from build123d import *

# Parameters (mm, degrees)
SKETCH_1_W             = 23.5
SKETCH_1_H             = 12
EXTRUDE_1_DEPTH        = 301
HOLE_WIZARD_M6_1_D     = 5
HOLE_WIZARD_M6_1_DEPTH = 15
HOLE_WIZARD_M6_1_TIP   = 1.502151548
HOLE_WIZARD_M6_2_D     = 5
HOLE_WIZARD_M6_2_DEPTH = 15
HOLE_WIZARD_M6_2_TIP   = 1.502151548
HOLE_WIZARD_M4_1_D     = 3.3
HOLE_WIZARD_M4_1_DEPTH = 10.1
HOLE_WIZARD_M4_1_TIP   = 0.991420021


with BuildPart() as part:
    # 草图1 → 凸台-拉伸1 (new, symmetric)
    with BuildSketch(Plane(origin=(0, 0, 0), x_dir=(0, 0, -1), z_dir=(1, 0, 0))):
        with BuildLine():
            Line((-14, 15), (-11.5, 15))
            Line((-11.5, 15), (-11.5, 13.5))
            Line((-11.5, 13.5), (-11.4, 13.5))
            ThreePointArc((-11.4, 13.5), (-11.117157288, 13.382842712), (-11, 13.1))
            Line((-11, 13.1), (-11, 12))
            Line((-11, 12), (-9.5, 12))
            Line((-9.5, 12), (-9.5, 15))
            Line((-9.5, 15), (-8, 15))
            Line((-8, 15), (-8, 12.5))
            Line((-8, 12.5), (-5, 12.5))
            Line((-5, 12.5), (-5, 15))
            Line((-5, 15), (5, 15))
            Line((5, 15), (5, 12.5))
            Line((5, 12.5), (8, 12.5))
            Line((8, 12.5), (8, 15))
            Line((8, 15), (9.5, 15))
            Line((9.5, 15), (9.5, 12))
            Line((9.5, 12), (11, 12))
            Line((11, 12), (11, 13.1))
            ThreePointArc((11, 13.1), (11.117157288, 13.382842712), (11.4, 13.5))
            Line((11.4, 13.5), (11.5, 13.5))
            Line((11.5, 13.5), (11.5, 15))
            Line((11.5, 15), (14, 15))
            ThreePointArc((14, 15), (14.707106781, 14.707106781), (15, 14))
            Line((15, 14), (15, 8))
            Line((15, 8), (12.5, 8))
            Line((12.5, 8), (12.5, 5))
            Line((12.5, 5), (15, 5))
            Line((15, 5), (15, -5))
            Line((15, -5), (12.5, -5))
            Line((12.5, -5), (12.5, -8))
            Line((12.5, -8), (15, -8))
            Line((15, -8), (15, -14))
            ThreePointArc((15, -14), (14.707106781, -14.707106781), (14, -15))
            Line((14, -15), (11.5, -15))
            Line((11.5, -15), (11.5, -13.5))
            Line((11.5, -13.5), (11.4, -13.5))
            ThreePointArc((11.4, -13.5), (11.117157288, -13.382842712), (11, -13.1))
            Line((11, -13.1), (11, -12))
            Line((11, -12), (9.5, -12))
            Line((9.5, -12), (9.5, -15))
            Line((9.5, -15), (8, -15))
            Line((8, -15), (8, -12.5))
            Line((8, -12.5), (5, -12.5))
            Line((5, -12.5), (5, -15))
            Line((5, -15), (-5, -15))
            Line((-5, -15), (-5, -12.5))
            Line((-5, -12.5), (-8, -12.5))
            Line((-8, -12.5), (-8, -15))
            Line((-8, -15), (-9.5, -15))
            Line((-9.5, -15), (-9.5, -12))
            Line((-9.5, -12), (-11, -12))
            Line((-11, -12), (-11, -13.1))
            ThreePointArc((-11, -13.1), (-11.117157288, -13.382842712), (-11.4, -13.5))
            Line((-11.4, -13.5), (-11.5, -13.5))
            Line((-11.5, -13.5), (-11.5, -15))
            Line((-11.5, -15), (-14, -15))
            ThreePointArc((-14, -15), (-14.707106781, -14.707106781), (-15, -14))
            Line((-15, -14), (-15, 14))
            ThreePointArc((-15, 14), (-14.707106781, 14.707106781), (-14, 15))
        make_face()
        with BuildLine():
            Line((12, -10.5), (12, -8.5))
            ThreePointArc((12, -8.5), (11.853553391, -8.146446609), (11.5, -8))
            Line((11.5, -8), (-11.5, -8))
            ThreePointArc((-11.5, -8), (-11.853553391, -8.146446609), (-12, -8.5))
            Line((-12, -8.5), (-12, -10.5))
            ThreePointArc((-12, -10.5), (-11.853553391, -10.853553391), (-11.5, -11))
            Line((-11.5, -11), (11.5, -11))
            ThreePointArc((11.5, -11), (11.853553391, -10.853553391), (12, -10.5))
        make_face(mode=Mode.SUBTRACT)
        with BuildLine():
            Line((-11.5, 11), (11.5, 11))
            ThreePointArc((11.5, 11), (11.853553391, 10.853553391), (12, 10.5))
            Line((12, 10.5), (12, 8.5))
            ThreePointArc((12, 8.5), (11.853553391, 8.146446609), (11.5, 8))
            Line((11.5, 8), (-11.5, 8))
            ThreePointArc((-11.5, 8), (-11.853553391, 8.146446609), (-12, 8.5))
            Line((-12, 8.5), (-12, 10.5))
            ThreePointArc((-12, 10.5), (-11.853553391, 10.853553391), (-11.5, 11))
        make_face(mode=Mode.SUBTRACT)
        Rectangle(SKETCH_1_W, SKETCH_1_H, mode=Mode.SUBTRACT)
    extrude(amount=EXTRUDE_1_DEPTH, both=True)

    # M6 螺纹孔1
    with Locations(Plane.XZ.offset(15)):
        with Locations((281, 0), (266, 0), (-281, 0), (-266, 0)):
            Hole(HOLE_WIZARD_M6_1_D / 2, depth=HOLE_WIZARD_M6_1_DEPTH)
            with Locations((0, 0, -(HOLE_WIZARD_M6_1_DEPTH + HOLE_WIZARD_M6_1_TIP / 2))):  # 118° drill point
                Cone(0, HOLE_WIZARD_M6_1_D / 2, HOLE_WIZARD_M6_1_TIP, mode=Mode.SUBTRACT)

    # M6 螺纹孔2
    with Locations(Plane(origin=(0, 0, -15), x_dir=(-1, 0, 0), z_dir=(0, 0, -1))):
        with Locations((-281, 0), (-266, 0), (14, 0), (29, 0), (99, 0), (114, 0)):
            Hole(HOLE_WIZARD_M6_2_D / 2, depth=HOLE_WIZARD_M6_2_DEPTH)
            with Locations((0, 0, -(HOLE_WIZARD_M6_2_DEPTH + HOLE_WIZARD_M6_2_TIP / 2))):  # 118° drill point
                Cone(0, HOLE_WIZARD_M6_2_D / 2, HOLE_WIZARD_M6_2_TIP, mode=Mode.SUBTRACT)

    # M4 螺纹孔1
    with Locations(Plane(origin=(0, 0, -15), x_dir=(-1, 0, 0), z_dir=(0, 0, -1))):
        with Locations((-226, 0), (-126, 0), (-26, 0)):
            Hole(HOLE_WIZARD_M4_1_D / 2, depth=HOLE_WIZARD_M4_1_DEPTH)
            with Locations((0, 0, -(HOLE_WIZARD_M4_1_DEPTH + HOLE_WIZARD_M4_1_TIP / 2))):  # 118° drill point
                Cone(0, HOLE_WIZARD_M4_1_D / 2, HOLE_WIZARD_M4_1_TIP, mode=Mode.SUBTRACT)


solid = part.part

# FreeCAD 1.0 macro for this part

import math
import FreeCAD as App
import Part
import Sketcher
from FreeCAD import Vector
Q = App.Units.Quantity

doc = App.newDocument("Part")
body = doc.addObject("PartDesign::Body", "Body")

sketch1 = body.newObject("Sketcher::SketchObject", "Sketch")
sketch1.AttachmentSupport = (doc.getObject("YZ_Plane"), [""])
sketch1.MapMode = "FlatFace"
sketch1.addGeometry([
    Part.LineSegment(Vector(15, 11.5, 0), Vector(15, 14, 0)),
    Part.ArcOfCircle(Part.Circle(Vector(14, 14, 0), Vector(0, 0, 1), 1), math.radians(0), math.radians(90)),
    Part.LineSegment(Vector(14, 15, 0), Vector(-14, 15, 0)),
    Part.ArcOfCircle(Part.Circle(Vector(-14, 14, 0), Vector(0, 0, 1), 1), math.radians(90), math.radians(180)),
    Part.LineSegment(Vector(-15, 14, 0), Vector(-15, 11.5, 0)),
    Part.LineSegment(Vector(-15, 11.5, 0), Vector(-13.5, 11.5, 0)),
    Part.LineSegment(Vector(-13.5, 11.5, 0), Vector(-13.5, 11.4, 0)),
    Part.ArcOfCircle(Part.Circle(Vector(-13.1, 11.4, 0), Vector(0, 0, 1), 0.4), math.radians(-180), math.radians(-90)),
    Part.LineSegment(Vector(-13.1, 11, 0), Vector(-12, 11, 0)),
    Part.LineSegment(Vector(-12, 11, 0), Vector(-12, 9.5, 0)),
    Part.LineSegment(Vector(-12, 9.5, 0), Vector(-15, 9.5, 0)),
    Part.LineSegment(Vector(-15, 9.5, 0), Vector(-15, 8, 0)),
    Part.LineSegment(Vector(-15, 8, 0), Vector(-12.5, 8, 0)),
    Part.LineSegment(Vector(-12.5, 8, 0), Vector(-12.5, 5, 0)),
    Part.LineSegment(Vector(-12.5, 5, 0), Vector(-15, 5, 0)),
    Part.LineSegment(Vector(-15, 5, 0), Vector(-15, -5, 0)),
    Part.LineSegment(Vector(-15, -5, 0), Vector(-12.5, -5, 0)),
    Part.LineSegment(Vector(-12.5, -5, 0), Vector(-12.5, -8, 0)),
    Part.LineSegment(Vector(-12.5, -8, 0), Vector(-15, -8, 0)),
    Part.LineSegment(Vector(-15, -8, 0), Vector(-15, -9.5, 0)),
    Part.LineSegment(Vector(-15, -9.5, 0), Vector(-12, -9.5, 0)),
    Part.LineSegment(Vector(-12, -9.5, 0), Vector(-12, -11, 0)),
    Part.LineSegment(Vector(-12, -11, 0), Vector(-13.1, -11, 0)),
    Part.ArcOfCircle(Part.Circle(Vector(-13.1, -11.4, 0), Vector(0, 0, 1), 0.4), math.radians(90), math.radians(180)),
    Part.LineSegment(Vector(-13.5, -11.4, 0), Vector(-13.5, -11.5, 0)),
    Part.LineSegment(Vector(-13.5, -11.5, 0), Vector(-15, -11.5, 0)),
    Part.LineSegment(Vector(-15, -11.5, 0), Vector(-15, -14, 0)),
    Part.ArcOfCircle(Part.Circle(Vector(-14, -14, 0), Vector(0, 0, 1), 1), math.radians(-180), math.radians(-90)),
    Part.LineSegment(Vector(-14, -15, 0), Vector(-8, -15, 0)),
    Part.LineSegment(Vector(-8, -15, 0), Vector(-8, -12.5, 0)),
    Part.LineSegment(Vector(-8, -12.5, 0), Vector(-5, -12.5, 0)),
    Part.LineSegment(Vector(-5, -12.5, 0), Vector(-5, -15, 0)),
    Part.LineSegment(Vector(-5, -15, 0), Vector(5, -15, 0)),
    Part.LineSegment(Vector(5, -15, 0), Vector(5, -12.5, 0)),
    Part.LineSegment(Vector(5, -12.5, 0), Vector(8, -12.5, 0)),
    Part.LineSegment(Vector(8, -12.5, 0), Vector(8, -15, 0)),
    Part.LineSegment(Vector(8, -15, 0), Vector(14, -15, 0)),
    Part.ArcOfCircle(Part.Circle(Vector(14, -14, 0), Vector(0, 0, 1), 1), math.radians(-90), math.radians(0)),
    Part.LineSegment(Vector(15, -14, 0), Vector(15, -11.5, 0)),
    Part.LineSegment(Vector(15, -11.5, 0), Vector(13.5, -11.5, 0)),
    Part.LineSegment(Vector(13.5, -11.5, 0), Vector(13.5, -11.4, 0)),
    Part.ArcOfCircle(Part.Circle(Vector(13.1, -11.4, 0), Vector(0, 0, 1), 0.4), math.radians(0), math.radians(90)),
    Part.LineSegment(Vector(13.1, -11, 0), Vector(12, -11, 0)),
    Part.LineSegment(Vector(12, -11, 0), Vector(12, -9.5, 0)),
    Part.LineSegment(Vector(12, -9.5, 0), Vector(15, -9.5, 0)),
    Part.LineSegment(Vector(15, -9.5, 0), Vector(15, -8, 0)),
    Part.LineSegment(Vector(15, -8, 0), Vector(12.5, -8, 0)),
    Part.LineSegment(Vector(12.5, -8, 0), Vector(12.5, -5, 0)),
    Part.LineSegment(Vector(12.5, -5, 0), Vector(15, -5, 0)),
    Part.LineSegment(Vector(15, -5, 0), Vector(15, 5, 0)),
    Part.LineSegment(Vector(15, 5, 0), Vector(12.5, 5, 0)),
    Part.LineSegment(Vector(12.5, 5, 0), Vector(12.5, 8, 0)),
    Part.LineSegment(Vector(12.5, 8, 0), Vector(15, 8, 0)),
    Part.LineSegment(Vector(15, 8, 0), Vector(15, 9.5, 0)),
    Part.LineSegment(Vector(15, 9.5, 0), Vector(12, 9.5, 0)),
    Part.LineSegment(Vector(12, 9.5, 0), Vector(12, 11, 0)),
    Part.LineSegment(Vector(12, 11, 0), Vector(13.1, 11, 0)),
    Part.ArcOfCircle(Part.Circle(Vector(13.1, 11.4, 0), Vector(0, 0, 1), 0.4), math.radians(-90), math.radians(0)),
    Part.LineSegment(Vector(13.5, 11.4, 0), Vector(13.5, 11.5, 0)),
    Part.LineSegment(Vector(13.5, 11.5, 0), Vector(15, 11.5, 0)),
    Part.ArcOfCircle(Part.Circle(Vector(-10.5, -11.5, 0), Vector(0, 0, 1), 0.5), math.radians(180), math.radians(270)),
    Part.LineSegment(Vector(-11, -11.5, 0), Vector(-11, 11.5, 0)),
    Part.ArcOfCircle(Part.Circle(Vector(-10.5, 11.5, 0), Vector(0, 0, 1), 0.5), math.radians(90), math.radians(180)),
    Part.LineSegment(Vector(-10.5, 12, 0), Vector(-8.5, 12, 0)),
    Part.ArcOfCircle(Part.Circle(Vector(-8.5, 11.5, 0), Vector(0, 0, 1), 0.5), math.radians(0), math.radians(90)),
    Part.LineSegment(Vector(-8, 11.5, 0), Vector(-8, -11.5, 0)),
    Part.ArcOfCircle(Part.Circle(Vector(-8.5, -11.5, 0), Vector(0, 0, 1), 0.5), math.radians(-90), math.radians(0)),
    Part.LineSegment(Vector(-8.5, -12, 0), Vector(-10.5, -12, 0)),
    Part.LineSegment(Vector(-6, 11.75, 0), Vector(6, 11.75, 0)),
    Part.LineSegment(Vector(6, 11.75, 0), Vector(6, -11.75, 0)),
    Part.LineSegment(Vector(6, -11.75, 0), Vector(-6, -11.75, 0)),
    Part.LineSegment(Vector(-6, -11.75, 0), Vector(-6, 11.75, 0)),
    Part.LineSegment(Vector(11, 11.5, 0), Vector(11, -11.5, 0)),
    Part.ArcOfCircle(Part.Circle(Vector(10.5, -11.5, 0), Vector(0, 0, 1), 0.5), math.radians(-90), math.radians(0)),
    Part.LineSegment(Vector(10.5, -12, 0), Vector(8.5, -12, 0)),
    Part.ArcOfCircle(Part.Circle(Vector(8.5, -11.5, 0), Vector(0, 0, 1), 0.5), math.radians(180), math.radians(270)),
    Part.LineSegment(Vector(8, -11.5, 0), Vector(8, 11.5, 0)),
    Part.ArcOfCircle(Part.Circle(Vector(8.5, 11.5, 0), Vector(0, 0, 1), 0.5), math.radians(90), math.radians(180)),
    Part.LineSegment(Vector(8.5, 12, 0), Vector(10.5, 12, 0)),
    Part.ArcOfCircle(Part.Circle(Vector(10.5, 11.5, 0), Vector(0, 0, 1), 0.5), math.radians(0), math.radians(90)),
], False)
sketch1.addConstraint([
    Sketcher.Constraint("Tangent", 0, 2, 1, 1),
    Sketcher.Constraint("Tangent", 1, 2, 2, 1),
    Sketcher.Constraint("Tangent", 2, 2, 3, 1),
    Sketcher.Constraint("Tangent", 3, 2, 4, 1),
    Sketcher.Constraint("Coincident", 4, 2, 5, 1),
    Sketcher.Constraint("Coincident", 5, 2, 6, 1),
    Sketcher.Constraint("Tangent", 6, 2, 7, 1),
    Sketcher.Constraint("Tangent", 7, 2, 8, 1),
    Sketcher.Constraint("Coincident", 8, 2, 9, 1),
    Sketcher.Constraint("Coincident", 9, 2, 10, 1),
    Sketcher.Constraint("Coincident", 10, 2, 11, 1),
    Sketcher.Constraint("Coincident", 11, 2, 12, 1),
    Sketcher.Constraint("Coincident", 12, 2, 13, 1),
    Sketcher.Constraint("Coincident", 13, 2, 14, 1),
    Sketcher.Constraint("Coincident", 14, 2, 15, 1),
    Sketcher.Constraint("Coincident", 15, 2, 16, 1),
    Sketcher.Constraint("Coincident", 16, 2, 17, 1),
    Sketcher.Constraint("Coincident", 17, 2, 18, 1),
    Sketcher.Constraint("Coincident", 18, 2, 19, 1),
    Sketcher.Constraint("Coincident", 19, 2, 20, 1),
    Sketcher.Constraint("Coincident", 20, 2, 21, 1),
    Sketcher.Constraint("Coincident", 21, 2, 22, 1),
    Sketcher.Constraint("Tangent", 22, 2, 23, 1),
    Sketcher.Constraint("Tangent", 23, 2, 24, 1),
    Sketcher.Constraint("Coincident", 24, 2, 25, 1),
    Sketcher.Constraint("Coincident", 25, 2, 26, 1),
    Sketcher.Constraint("Tangent", 26, 2, 27, 1),
    Sketcher.Constraint("Tangent", 27, 2, 28, 1),
    Sketcher.Constraint("Coincident", 28, 2, 29, 1),
    Sketcher.Constraint("Coincident", 29, 2, 30, 1),
    Sketcher.Constraint("Coincident", 30, 2, 31, 1),
    Sketcher.Constraint("Coincident", 31, 2, 32, 1),
    Sketcher.Constraint("Coincident", 32, 2, 33, 1),
    Sketcher.Constraint("Coincident", 33, 2, 34, 1),
    Sketcher.Constraint("Coincident", 34, 2, 35, 1),
    Sketcher.Constraint("Coincident", 35, 2, 36, 1),
    Sketcher.Constraint("Tangent", 36, 2, 37, 1),
    Sketcher.Constraint("Tangent", 37, 2, 38, 1),
    Sketcher.Constraint("Coincident", 38, 2, 39, 1),
    Sketcher.Constraint("Coincident", 39, 2, 40, 1),
    Sketcher.Constraint("Tangent", 40, 2, 41, 1),
    Sketcher.Constraint("Tangent", 41, 2, 42, 1),
    Sketcher.Constraint("Coincident", 42, 2, 43, 1),
    Sketcher.Constraint("Coincident", 43, 2, 44, 1),
    Sketcher.Constraint("Coincident", 44, 2, 45, 1),
    Sketcher.Constraint("Coincident", 45, 2, 46, 1),
    Sketcher.Constraint("Coincident", 46, 2, 47, 1),
    Sketcher.Constraint("Coincident", 47, 2, 48, 1),
    Sketcher.Constraint("Coincident", 48, 2, 49, 1),
    Sketcher.Constraint("Coincident", 49, 2, 50, 1),
    Sketcher.Constraint("Coincident", 50, 2, 51, 1),
    Sketcher.Constraint("Coincident", 51, 2, 52, 1),
    Sketcher.Constraint("Coincident", 52, 2, 53, 1),
    Sketcher.Constraint("Coincident", 53, 2, 54, 1),
    Sketcher.Constraint("Coincident", 54, 2, 55, 1),
    Sketcher.Constraint("Coincident", 55, 2, 56, 1),
    Sketcher.Constraint("Tangent", 56, 2, 57, 1),
    Sketcher.Constraint("Tangent", 57, 2, 58, 1),
    Sketcher.Constraint("Coincident", 58, 2, 59, 1),
    Sketcher.Constraint("Coincident", 59, 2, 0, 1),
    Sketcher.Constraint("Tangent", 60, 1, 61, 1),
    Sketcher.Constraint("Tangent", 61, 2, 62, 2),
    Sketcher.Constraint("Tangent", 62, 1, 63, 1),
    Sketcher.Constraint("Tangent", 63, 2, 64, 2),
    Sketcher.Constraint("Tangent", 64, 1, 65, 1),
    Sketcher.Constraint("Tangent", 65, 2, 66, 2),
    Sketcher.Constraint("Tangent", 66, 1, 67, 1),
    Sketcher.Constraint("Tangent", 67, 2, 60, 2),
    Sketcher.Constraint("Coincident", 68, 2, 69, 1),
    Sketcher.Constraint("Coincident", 69, 2, 70, 1),
    Sketcher.Constraint("Coincident", 70, 2, 71, 1),
    Sketcher.Constraint("Coincident", 71, 2, 68, 1),
    Sketcher.Constraint("Tangent", 72, 2, 73, 2),
    Sketcher.Constraint("Tangent", 73, 1, 74, 1),
    Sketcher.Constraint("Tangent", 74, 2, 75, 2),
    Sketcher.Constraint("Tangent", 75, 1, 76, 1),
    Sketcher.Constraint("Tangent", 76, 2, 77, 2),
    Sketcher.Constraint("Tangent", 77, 1, 78, 1),
    Sketcher.Constraint("Tangent", 78, 2, 79, 2),
    Sketcher.Constraint("Tangent", 79, 1, 72, 1),
    Sketcher.Constraint("Vertical", 0),
    Sketcher.Constraint("Horizontal", 2),
    Sketcher.Constraint("Vertical", 4),
    Sketcher.Constraint("Horizontal", 5),
    Sketcher.Constraint("Vertical", 6),
    Sketcher.Constraint("Horizontal", 8),
    Sketcher.Constraint("Vertical", 9),
    Sketcher.Constraint("Horizontal", 10),
    Sketcher.Constraint("Vertical", 11),
    Sketcher.Constraint("Horizontal", 12),
    Sketcher.Constraint("Vertical", 13),
    Sketcher.Constraint("Horizontal", 14),
    Sketcher.Constraint("Vertical", 15),
    Sketcher.Constraint("Horizontal", 16),
    Sketcher.Constraint("Vertical", 17),
    Sketcher.Constraint("Horizontal", 18),
    Sketcher.Constraint("Vertical", 19),
    Sketcher.Constraint("Horizontal", 20),
    Sketcher.Constraint("Vertical", 21),
    Sketcher.Constraint("Horizontal", 22),
    Sketcher.Constraint("Vertical", 24),
    Sketcher.Constraint("Horizontal", 25),
    Sketcher.Constraint("Vertical", 26),
    Sketcher.Constraint("Horizontal", 28),
    Sketcher.Constraint("Vertical", 29),
    Sketcher.Constraint("Horizontal", 30),
    Sketcher.Constraint("Vertical", 31),
    Sketcher.Constraint("Horizontal", 32),
    Sketcher.Constraint("Vertical", 33),
    Sketcher.Constraint("Horizontal", 34),
    Sketcher.Constraint("Vertical", 35),
    Sketcher.Constraint("Horizontal", 36),
    Sketcher.Constraint("Vertical", 38),
    Sketcher.Constraint("Horizontal", 39),
    Sketcher.Constraint("Vertical", 40),
    Sketcher.Constraint("Horizontal", 42),
    Sketcher.Constraint("Vertical", 43),
    Sketcher.Constraint("Horizontal", 44),
    Sketcher.Constraint("Vertical", 45),
    Sketcher.Constraint("Horizontal", 46),
    Sketcher.Constraint("Vertical", 47),
    Sketcher.Constraint("Horizontal", 48),
    Sketcher.Constraint("Vertical", 49),
    Sketcher.Constraint("Horizontal", 50),
    Sketcher.Constraint("Vertical", 51),
    Sketcher.Constraint("Horizontal", 52),
    Sketcher.Constraint("Vertical", 53),
    Sketcher.Constraint("Horizontal", 54),
    Sketcher.Constraint("Vertical", 55),
    Sketcher.Constraint("Horizontal", 56),
    Sketcher.Constraint("Vertical", 58),
    Sketcher.Constraint("Horizontal", 59),
    Sketcher.Constraint("Vertical", 61),
    Sketcher.Constraint("Horizontal", 63),
    Sketcher.Constraint("Vertical", 65),
    Sketcher.Constraint("Horizontal", 67),
    Sketcher.Constraint("Horizontal", 68),
    Sketcher.Constraint("Vertical", 69),
    Sketcher.Constraint("Horizontal", 70),
    Sketcher.Constraint("Vertical", 71),
    Sketcher.Constraint("Vertical", 72),
    Sketcher.Constraint("Horizontal", 74),
    Sketcher.Constraint("Vertical", 76),
    Sketcher.Constraint("Horizontal", 78),
    Sketcher.Constraint("Equal", 1, 3),
    Sketcher.Constraint("Equal", 7, 23),
    Sketcher.Constraint("Equal", 3, 27),
    Sketcher.Constraint("Equal", 27, 37),
    Sketcher.Constraint("Equal", 23, 41),
    Sketcher.Constraint("Equal", 41, 57),
    Sketcher.Constraint("Equal", 60, 62),
    Sketcher.Constraint("Equal", 62, 64),
    Sketcher.Constraint("Equal", 64, 66),
    Sketcher.Constraint("Equal", 66, 73),
    Sketcher.Constraint("Equal", 73, 75),
    Sketcher.Constraint("Equal", 75, 77),
    Sketcher.Constraint("Equal", 77, 79),
    Sketcher.Constraint("Symmetric", 1, 3, 27, 3, -1, 1),
    Sketcher.Constraint("Symmetric", 3, 3, 37, 3, -1, 1),
    Sketcher.Constraint("Symmetric", 7, 3, 41, 3, -1, 1),
    Sketcher.Constraint("Symmetric", 23, 3, 57, 3, -1, 1),
    Sketcher.Constraint("Symmetric", 62, 3, 73, 3, -1, 1),
    Sketcher.Constraint("Symmetric", 66, 3, 77, 3, -1, 1),
    Sketcher.Constraint("Symmetric", 9, 2, 43, 2, -1, 1),
    Sketcher.Constraint("Symmetric", 11, 2, 45, 2, -1, 1),
    Sketcher.Constraint("Symmetric", 13, 2, 47, 2, -1, 1),
    Sketcher.Constraint("Symmetric", 15, 2, 49, 2, -1, 1),
    Sketcher.Constraint("Symmetric", 17, 2, 51, 2, -1, 1),
    Sketcher.Constraint("Symmetric", 19, 2, 53, 2, -1, 1),
    Sketcher.Constraint("Symmetric", 68, 2, 70, 2, -1, 1),
    Sketcher.Constraint("Symmetric", 23, 3, 41, 3, -2),
    Sketcher.Constraint("Symmetric", 30, 2, 33, 2, -2),
    Sketcher.Constraint("Symmetric", 25, 2, 38, 2, -2),
    Sketcher.Constraint("Symmetric", 20, 2, 43, 2, -2),
    Sketcher.Constraint("Symmetric", 18, 2, 45, 2, -2),
    Sketcher.Constraint("Symmetric", 16, 2, 47, 2, -2),
    Sketcher.Constraint("Horizontal", 66, 3, 73, 3),
    Sketcher.Constraint("Horizontal", 79, 3, 4, 2),
    Sketcher.Constraint("Horizontal", 75, 3, 24, 2),
    Sketcher.Constraint("Horizontal", 28, 2, 31, 2),
    Sketcher.Constraint("Horizontal", 5, 2, 58, 2),
    Sketcher.Constraint("Vertical", 4, 2, 10, 2),
    Sketcher.Constraint("Vertical", 11, 2, 14, 2),
    Sketcher.Constraint("Vertical", 43, 2, 54, 2),
    Sketcher.Constraint("Vertical", 29, 2, 64, 1),
    Sketcher.Constraint("Vertical", 35, 2, 75, 1),
    Sketcher.Constraint("Equal", 20, 30),
    Sketcher.Constraint("Equal", 52, 0),
    Sketcher.Constraint("Equal", 59, 9),
    Sketcher.Constraint("Equal", 9, 11),
    Sketcher.Constraint("Equal", 54, 13),
    Sketcher.Constraint("Equal", 32, 15),
    Sketcher.Constraint("Equal", 26, 29),
    Sketcher.Constraint("Radius", 1, Q("1 mm")),
    Sketcher.Constraint("Radius", 7, Q("0.4 mm")),
    Sketcher.Constraint("Radius", 60, Q("0.5 mm")),
    Sketcher.Constraint("DistanceX", 2, 2, 2, 1, Q("28 mm")),
    Sketcher.Constraint("DistanceX", 10, 2, 10, 1, Q("3 mm")),
    Sketcher.Constraint("DistanceX", 28, 1, 28, 2, Q("6 mm")),
    Sketcher.Constraint("DistanceX", 63, 1, 63, 2, Q("2 mm")),
    Sketcher.Constraint("DistanceX", 68, 1, 68, 2, Q("12 mm")),
    Sketcher.Constraint("DistanceY", 61, 1, 61, 2, Q("23 mm")),
    Sketcher.Constraint("DistanceX", 5, 1, 5, 2, Q("1.5 mm")),
    Sketcher.Constraint("DistanceX", 12, 1, 12, 2, Q("2.5 mm")),
    Sketcher.Constraint("DistanceY", 69, 2, 69, 1, Q("23.5 mm")),
])
pad1 = body.newObject("PartDesign::Pad", "Pad")
pad1.Profile = sketch1
pad1.Length = 602
pad1.Midplane = True

sketch2 = body.newObject("Sketcher::SketchObject", "Sketch001")
sketch2.AttachmentSupport = (doc.getObject("XZ_Plane"), [""])
sketch2.MapMode = "FlatFace"
sketch2.AttachmentOffset = App.Placement(Vector(0, 0, 15), App.Rotation())
sketch2.addGeometry([
    Part.Circle(Vector(281, 0, 0), Vector(0, 0, 1), 2.5),
    Part.Circle(Vector(266, 0, 0), Vector(0, 0, 1), 2.5),
    Part.Circle(Vector(-281, 0, 0), Vector(0, 0, 1), 2.5),
    Part.Circle(Vector(-266, 0, 0), Vector(0, 0, 1), 2.5),
], False)
sketch2.addConstraint([
    Sketcher.Constraint("Equal", 0, 1),
    Sketcher.Constraint("Equal", 1, 2),
    Sketcher.Constraint("Equal", 2, 3),
    Sketcher.Constraint("Symmetric", 0, 3, 2, 3, -1, 1),
    Sketcher.Constraint("Symmetric", 1, 3, 3, 3, -1, 1),
    Sketcher.Constraint("PointOnObject", 0, 3, -1),
    Sketcher.Constraint("PointOnObject", 1, 3, -1),
    Sketcher.Constraint("Diameter", 0, Q("5 mm")),
    Sketcher.Constraint("DistanceX", -1, 1, 0, 3, Q("281 mm")),
    Sketcher.Constraint("DistanceX", -1, 1, 1, 3, Q("266 mm")),
])
doc.recompute()
hole = body.newObject("PartDesign::Hole", "Hole")
hole.Profile = sketch2
hole.ThreadType = "None"
hole.Diameter = 5
hole.DepthType = "Dimension"
hole.Depth = 15
hole.DrillPoint = "Angled"
hole.DrillPointAngle = 118

sketch3 = body.newObject("Sketcher::SketchObject", "Sketch002")
sketch3.AttachmentSupport = (doc.getObject("XY_Plane"), [""])
sketch3.MapMode = "FlatFace"
sketch3.AttachmentOffset = App.Placement(Vector(0, 0, -15), App.Rotation())
sketch3.addGeometry([
    Part.Circle(Vector(281, 0, 0), Vector(0, 0, 1), 2.5),
    Part.Circle(Vector(266, 0, 0), Vector(0, 0, 1), 2.5),
    Part.Circle(Vector(-14, 0, 0), Vector(0, 0, 1), 2.5),
    Part.Circle(Vector(-29, 0, 0), Vector(0, 0, 1), 2.5),
    Part.Circle(Vector(-99, 0, 0), Vector(0, 0, 1), 2.5),
    Part.Circle(Vector(-114, 0, 0), Vector(0, 0, 1), 2.5),
], False)
sketch3.addConstraint([
    Sketcher.Constraint("Equal", 0, 1),
    Sketcher.Constraint("Equal", 1, 2),
    Sketcher.Constraint("Equal", 2, 3),
    Sketcher.Constraint("Equal", 3, 4),
    Sketcher.Constraint("Equal", 4, 5),
    Sketcher.Constraint("PointOnObject", 0, 3, -1),
    Sketcher.Constraint("PointOnObject", 1, 3, -1),
    Sketcher.Constraint("PointOnObject", 2, 3, -1),
    Sketcher.Constraint("PointOnObject", 3, 3, -1),
    Sketcher.Constraint("PointOnObject", 4, 3, -1),
    Sketcher.Constraint("PointOnObject", 5, 3, -1),
    Sketcher.Constraint("Diameter", 0, Q("5 mm")),
    Sketcher.Constraint("DistanceX", -1, 1, 0, 3, Q("281 mm")),
    Sketcher.Constraint("DistanceX", -1, 1, 1, 3, Q("266 mm")),
    Sketcher.Constraint("DistanceX", 2, 3, -1, 1, Q("14 mm")),
    Sketcher.Constraint("DistanceX", 3, 3, -1, 1, Q("29 mm")),
    Sketcher.Constraint("DistanceX", 4, 3, -1, 1, Q("99 mm")),
    Sketcher.Constraint("DistanceX", 5, 3, -1, 1, Q("114 mm")),
])
doc.recompute()
hole2 = body.newObject("PartDesign::Hole", "Hole001")
hole2.Profile = sketch3
hole2.ThreadType = "None"
hole2.Diameter = 5
hole2.DepthType = "Dimension"
hole2.Depth = 15
hole2.DrillPoint = "Angled"
hole2.DrillPointAngle = 118
hole2.Reversed = True

sketch4 = body.newObject("Sketcher::SketchObject", "Sketch003")
sketch4.AttachmentSupport = (doc.getObject("XY_Plane"), [""])
sketch4.MapMode = "FlatFace"
sketch4.AttachmentOffset = App.Placement(Vector(0, 0, -15), App.Rotation())
sketch4.addGeometry([
    Part.Circle(Vector(226, 0, 0), Vector(0, 0, 1), 1.6),
    Part.Circle(Vector(126, 0, 0), Vector(0, 0, 1), 1.6),
    Part.Circle(Vector(26, 0, 0), Vector(0, 0, 1), 1.6),
], False)
sketch4.addConstraint([
    Sketcher.Constraint("Equal", 0, 1),
    Sketcher.Constraint("Equal", 1, 2),
    Sketcher.Constraint("PointOnObject", 0, 3, -1),
    Sketcher.Constraint("PointOnObject", 1, 3, -1),
    Sketcher.Constraint("PointOnObject", 2, 3, -1),
    Sketcher.Constraint("Diameter", 0, Q("3.3 mm")),
    Sketcher.Constraint("DistanceX", -1, 1, 0, 3, Q("226 mm")),
    Sketcher.Constraint("DistanceX", -1, 1, 1, 3, Q("126 mm")),
    Sketcher.Constraint("DistanceX", -1, 1, 2, 3, Q("26 mm")),
])
doc.recompute()
hole3 = body.newObject("PartDesign::Hole", "Hole002")
hole3.Profile = sketch4
hole3.ThreadType = "None"
hole3.Diameter = 3.3
hole3.DepthType = "Dimension"
hole3.Depth = 10.1
hole3.DrillPoint = "Angled"
hole3.DrillPointAngle = 118
hole3.Reversed = True

doc.recompute()
